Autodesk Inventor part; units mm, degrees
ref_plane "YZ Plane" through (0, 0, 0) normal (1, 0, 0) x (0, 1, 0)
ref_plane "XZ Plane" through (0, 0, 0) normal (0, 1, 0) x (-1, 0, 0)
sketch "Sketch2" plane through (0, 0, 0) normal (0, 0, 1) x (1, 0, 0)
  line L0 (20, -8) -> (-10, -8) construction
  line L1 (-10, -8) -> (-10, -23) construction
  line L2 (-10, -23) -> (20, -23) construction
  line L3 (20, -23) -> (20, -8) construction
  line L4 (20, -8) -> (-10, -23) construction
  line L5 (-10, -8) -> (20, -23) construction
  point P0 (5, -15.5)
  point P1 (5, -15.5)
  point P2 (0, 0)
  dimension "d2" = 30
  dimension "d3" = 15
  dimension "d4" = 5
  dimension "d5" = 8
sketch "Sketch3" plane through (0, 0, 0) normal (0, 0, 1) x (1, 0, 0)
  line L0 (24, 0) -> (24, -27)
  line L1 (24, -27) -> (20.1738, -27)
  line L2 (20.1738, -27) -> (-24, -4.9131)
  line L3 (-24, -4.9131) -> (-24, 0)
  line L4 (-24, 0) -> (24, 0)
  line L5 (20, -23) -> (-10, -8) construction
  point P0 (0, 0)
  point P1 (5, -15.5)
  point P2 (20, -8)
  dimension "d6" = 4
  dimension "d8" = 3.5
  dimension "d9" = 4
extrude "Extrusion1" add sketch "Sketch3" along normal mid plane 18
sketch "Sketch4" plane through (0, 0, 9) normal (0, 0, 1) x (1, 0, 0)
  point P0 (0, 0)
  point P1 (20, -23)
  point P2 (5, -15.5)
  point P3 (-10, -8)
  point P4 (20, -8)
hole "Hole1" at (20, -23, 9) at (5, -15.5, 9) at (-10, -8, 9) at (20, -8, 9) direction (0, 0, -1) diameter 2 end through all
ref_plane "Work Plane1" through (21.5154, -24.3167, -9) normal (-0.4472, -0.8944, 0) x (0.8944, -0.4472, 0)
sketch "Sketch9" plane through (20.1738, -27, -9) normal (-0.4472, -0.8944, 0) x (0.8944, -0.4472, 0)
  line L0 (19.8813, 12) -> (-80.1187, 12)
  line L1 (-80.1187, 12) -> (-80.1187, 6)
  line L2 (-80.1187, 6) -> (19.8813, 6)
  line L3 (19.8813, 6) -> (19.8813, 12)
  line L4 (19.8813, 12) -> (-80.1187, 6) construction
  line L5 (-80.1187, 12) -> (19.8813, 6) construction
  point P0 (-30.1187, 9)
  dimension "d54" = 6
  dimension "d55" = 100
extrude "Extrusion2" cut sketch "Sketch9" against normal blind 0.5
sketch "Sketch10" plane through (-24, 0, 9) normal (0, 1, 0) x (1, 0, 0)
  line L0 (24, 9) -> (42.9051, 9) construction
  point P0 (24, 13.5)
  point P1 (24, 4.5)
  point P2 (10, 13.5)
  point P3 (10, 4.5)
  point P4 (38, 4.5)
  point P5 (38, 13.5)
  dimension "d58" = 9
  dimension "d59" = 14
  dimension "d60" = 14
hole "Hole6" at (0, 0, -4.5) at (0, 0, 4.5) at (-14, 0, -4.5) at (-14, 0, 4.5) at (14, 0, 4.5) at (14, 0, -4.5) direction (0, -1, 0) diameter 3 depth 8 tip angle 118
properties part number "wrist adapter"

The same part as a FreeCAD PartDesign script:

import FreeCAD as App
import Part
import Sketcher

doc = App.newDocument("Part")
body = doc.addObject("PartDesign::Body", "Body")

# Sketch on XY plane
sketch1 = body.newObject("Sketcher::SketchObject", "Sketch")
sketch1.AttachmentSupport = (doc.getObject("XY_Plane"), [""])
sketch1.MapMode = "FlatFace"
sketch1.addGeometry([
    Part.LineSegment(App.Vector(24, -27, 0), App.Vector(24, 0, 0)),  # 0
    Part.LineSegment(App.Vector(24, 0, 0), App.Vector(-24, 0, 0)),  # 1
    Part.LineSegment(App.Vector(-24, 0, 0), App.Vector(-24, -4.9, 0)),  # 2
    Part.LineSegment(App.Vector(-24, -4.9, 0), App.Vector(20.2, -27, 0)),  # 3
    Part.LineSegment(App.Vector(20.2, -27, 0), App.Vector(24, -27, 0)),  # 4
], False)
sketch1.addConstraint([
    Sketcher.Constraint("Coincident", 0, 2, 1, 1),
    Sketcher.Constraint("Coincident", 1, 2, 2, 1),
    Sketcher.Constraint("Coincident", 2, 2, 3, 1),
    Sketcher.Constraint("Coincident", 3, 2, 4, 1),
    Sketcher.Constraint("Coincident", 4, 2, 0, 1),
    Sketcher.Constraint("Vertical", 0),
    Sketcher.Constraint("Horizontal", 1),
    Sketcher.Constraint("Vertical", 2),
    Sketcher.Constraint("Horizontal", 4),
    Sketcher.Constraint("Symmetric", 0, 2, 1, 2, -1, 1),
    Sketcher.Constraint("DistanceX", 1, 2, 1, 1, 48.0),
    Sketcher.Constraint("DistanceY", 0, 1, 0, 2, 27.0),
    Sketcher.Constraint("DistanceY", 2, 2, 2, 1, 4.913),
    Sketcher.Constraint("DistanceX", 4, 1, 4, 2, 3.8262),
])
pad1 = body.newObject("PartDesign::Pad", "Pad")
pad1.Profile = sketch1
pad1.Length = 18
pad1.Midplane = True

# Sketch on XY plane
sketch2 = body.newObject("Sketcher::SketchObject", "Sketch001")
sketch2.AttachmentSupport = (doc.getObject("XY_Plane"), [""])
sketch2.MapMode = "FlatFace"
sketch2.AttachmentOffset = App.Placement(App.Vector(0, 0, 9), App.Rotation())
sketch2.addGeometry([
    Part.Circle(App.Vector(20, -23, 0), App.Vector(0, 0, 1), 1),
    Part.Circle(App.Vector(5, -15.5, 0), App.Vector(0, 0, 1), 1),
    Part.Circle(App.Vector(-10, -8, 0), App.Vector(0, 0, 1), 1),
    Part.Circle(App.Vector(20, -8, 0), App.Vector(0, 0, 1), 1),
], False)
sketch2.addConstraint([
    Sketcher.Constraint("Equal", 0, 1),
    Sketcher.Constraint("Equal", 1, 2),
    Sketcher.Constraint("Equal", 2, 3),
    Sketcher.Constraint("Horizontal", 2, 3, 3, 3),
    Sketcher.Constraint("Vertical", 0, 3, 3, 3),
    Sketcher.Constraint("Diameter", 0, 2.0),
    Sketcher.Constraint("DistanceX", -1, 1, 0, 3, 20.0),
    Sketcher.Constraint("DistanceY", 0, 3, -1, 1, 23.0),
    Sketcher.Constraint("DistanceX", -1, 1, 1, 3, 5.0),
    Sketcher.Constraint("DistanceX", 2, 3, -1, 1, 10.0),
    Sketcher.Constraint("DistanceY", 2, 3, -1, 1, 8.0),
    Sketcher.Constraint("DistanceY", 1, 3, -1, 1, 15.5),
])
doc.recompute()
hole = body.newObject("PartDesign::Hole", "Hole")
hole.Profile = sketch2
hole.ThreadType = "None"
hole.Diameter = 2
hole.DepthType = "ThroughAll"

# Sketch on an angled plane
sketch3 = body.newObject("Sketcher::SketchObject", "Sketch002")
sketch3.Placement = App.Placement(App.Vector(20.1738, -27, -9), App.Rotation(App.Vector(0.894427191, -0.447213595, 0), App.Vector(0, 0, 1), App.Vector(-0.447213595, -0.894427191, 0), "ZXY"))
sketch3.addGeometry([
    Part.LineSegment(App.Vector(20, 6, 0), App.Vector(20, 12, 0)),
    Part.LineSegment(App.Vector(20, 12, 0), App.Vector(-80, 12, 0)),
    Part.LineSegment(App.Vector(-80, 12, 0), App.Vector(-80, 6, 0)),
    Part.LineSegment(App.Vector(-80, 6, 0), App.Vector(20, 6, 0)),
], False)
sketch3.addConstraint([
    Sketcher.Constraint("Coincident", 0, 2, 1, 1),
    Sketcher.Constraint("Coincident", 1, 2, 2, 1),
    Sketcher.Constraint("Coincident", 2, 2, 3, 1),
    Sketcher.Constraint("Coincident", 3, 2, 0, 1),
    Sketcher.Constraint("Vertical", 0),
    Sketcher.Constraint("Horizontal", 1),
    Sketcher.Constraint("Vertical", 2),
    Sketcher.Constraint("Horizontal", 3),
    Sketcher.Constraint("DistanceX", 1, 2, 1, 1, 100.0),
    Sketcher.Constraint("DistanceY", 0, 1, 0, 2, 6.0),
    Sketcher.Constraint("DistanceY", -1, 1, 2, 2, 6.0),
    Sketcher.Constraint("DistanceX", -1, 1, 0, 2, 19.8813),
])
pocket1 = body.newObject("PartDesign::Pocket", "Pocket")
pocket1.Profile = sketch3
pocket1.Length = 0.5

# Sketch on XZ plane
sketch4 = body.newObject("Sketcher::SketchObject", "Sketch003")
sketch4.AttachmentSupport = (doc.getObject("XZ_Plane"), [""])
sketch4.MapMode = "FlatFace"
sketch4.addGeometry([
    Part.Circle(App.Vector(0, -4.5, 0), App.Vector(0, 0, 1), 1.5),  # 0
    Part.Circle(App.Vector(0, 4.5, 0), App.Vector(0, 0, 1), 1.5),  # 1
    Part.Circle(App.Vector(-14, -4.5, 0), App.Vector(0, 0, 1), 1.5),  # 2
    Part.Circle(App.Vector(-14, 4.5, 0), App.Vector(0, 0, 1), 1.5),  # 3
    Part.Circle(App.Vector(14, 4.5, 0), App.Vector(0, 0, 1), 1.5),  # 4
    Part.Circle(App.Vector(14, -4.5, 0), App.Vector(0, 0, 1), 1.5),  # 5
], False)
sketch4.addConstraint([
    Sketcher.Constraint("Equal", 0, 1),
    Sketcher.Constraint("Equal", 1, 2),
    Sketcher.Constraint("Equal", 2, 3),
    Sketcher.Constraint("Equal", 3, 4),
    Sketcher.Constraint("Equal", 4, 5),
    Sketcher.Constraint("Symmetric", 0, 3, 1, 3, -1, 1),
    Sketcher.Constraint("Symmetric", 2, 3, 4, 3, -1, 1),
    Sketcher.Constraint("Symmetric", 3, 3, 5, 3, -1, 1),
    Sketcher.Constraint("Symmetric", 3, 3, 4, 3, -2),
    Sketcher.Constraint("PointOnObject", 0, 3, -2),
    Sketcher.Constraint("Horizontal", 0, 3, 2, 3),
    Sketcher.Constraint("Diameter", 0, 3.0),
    Sketcher.Constraint("DistanceX", 2, 3, -1, 1, 14.0),
    Sketcher.Constraint("DistanceY", 0, 3, 1, 3, 9.0),
])
doc.recompute()
hole2 = body.newObject("PartDesign::Hole", "Hole001")
hole2.Profile = sketch4
hole2.ThreadType = "None"
hole2.Diameter = 3
hole2.DepthType = "Dimension"
hole2.Depth = 8
hole2.DrillPoint = "Angled"
hole2.DrillPointAngle = 118
hole2.Reversed = True

doc.recompute()
